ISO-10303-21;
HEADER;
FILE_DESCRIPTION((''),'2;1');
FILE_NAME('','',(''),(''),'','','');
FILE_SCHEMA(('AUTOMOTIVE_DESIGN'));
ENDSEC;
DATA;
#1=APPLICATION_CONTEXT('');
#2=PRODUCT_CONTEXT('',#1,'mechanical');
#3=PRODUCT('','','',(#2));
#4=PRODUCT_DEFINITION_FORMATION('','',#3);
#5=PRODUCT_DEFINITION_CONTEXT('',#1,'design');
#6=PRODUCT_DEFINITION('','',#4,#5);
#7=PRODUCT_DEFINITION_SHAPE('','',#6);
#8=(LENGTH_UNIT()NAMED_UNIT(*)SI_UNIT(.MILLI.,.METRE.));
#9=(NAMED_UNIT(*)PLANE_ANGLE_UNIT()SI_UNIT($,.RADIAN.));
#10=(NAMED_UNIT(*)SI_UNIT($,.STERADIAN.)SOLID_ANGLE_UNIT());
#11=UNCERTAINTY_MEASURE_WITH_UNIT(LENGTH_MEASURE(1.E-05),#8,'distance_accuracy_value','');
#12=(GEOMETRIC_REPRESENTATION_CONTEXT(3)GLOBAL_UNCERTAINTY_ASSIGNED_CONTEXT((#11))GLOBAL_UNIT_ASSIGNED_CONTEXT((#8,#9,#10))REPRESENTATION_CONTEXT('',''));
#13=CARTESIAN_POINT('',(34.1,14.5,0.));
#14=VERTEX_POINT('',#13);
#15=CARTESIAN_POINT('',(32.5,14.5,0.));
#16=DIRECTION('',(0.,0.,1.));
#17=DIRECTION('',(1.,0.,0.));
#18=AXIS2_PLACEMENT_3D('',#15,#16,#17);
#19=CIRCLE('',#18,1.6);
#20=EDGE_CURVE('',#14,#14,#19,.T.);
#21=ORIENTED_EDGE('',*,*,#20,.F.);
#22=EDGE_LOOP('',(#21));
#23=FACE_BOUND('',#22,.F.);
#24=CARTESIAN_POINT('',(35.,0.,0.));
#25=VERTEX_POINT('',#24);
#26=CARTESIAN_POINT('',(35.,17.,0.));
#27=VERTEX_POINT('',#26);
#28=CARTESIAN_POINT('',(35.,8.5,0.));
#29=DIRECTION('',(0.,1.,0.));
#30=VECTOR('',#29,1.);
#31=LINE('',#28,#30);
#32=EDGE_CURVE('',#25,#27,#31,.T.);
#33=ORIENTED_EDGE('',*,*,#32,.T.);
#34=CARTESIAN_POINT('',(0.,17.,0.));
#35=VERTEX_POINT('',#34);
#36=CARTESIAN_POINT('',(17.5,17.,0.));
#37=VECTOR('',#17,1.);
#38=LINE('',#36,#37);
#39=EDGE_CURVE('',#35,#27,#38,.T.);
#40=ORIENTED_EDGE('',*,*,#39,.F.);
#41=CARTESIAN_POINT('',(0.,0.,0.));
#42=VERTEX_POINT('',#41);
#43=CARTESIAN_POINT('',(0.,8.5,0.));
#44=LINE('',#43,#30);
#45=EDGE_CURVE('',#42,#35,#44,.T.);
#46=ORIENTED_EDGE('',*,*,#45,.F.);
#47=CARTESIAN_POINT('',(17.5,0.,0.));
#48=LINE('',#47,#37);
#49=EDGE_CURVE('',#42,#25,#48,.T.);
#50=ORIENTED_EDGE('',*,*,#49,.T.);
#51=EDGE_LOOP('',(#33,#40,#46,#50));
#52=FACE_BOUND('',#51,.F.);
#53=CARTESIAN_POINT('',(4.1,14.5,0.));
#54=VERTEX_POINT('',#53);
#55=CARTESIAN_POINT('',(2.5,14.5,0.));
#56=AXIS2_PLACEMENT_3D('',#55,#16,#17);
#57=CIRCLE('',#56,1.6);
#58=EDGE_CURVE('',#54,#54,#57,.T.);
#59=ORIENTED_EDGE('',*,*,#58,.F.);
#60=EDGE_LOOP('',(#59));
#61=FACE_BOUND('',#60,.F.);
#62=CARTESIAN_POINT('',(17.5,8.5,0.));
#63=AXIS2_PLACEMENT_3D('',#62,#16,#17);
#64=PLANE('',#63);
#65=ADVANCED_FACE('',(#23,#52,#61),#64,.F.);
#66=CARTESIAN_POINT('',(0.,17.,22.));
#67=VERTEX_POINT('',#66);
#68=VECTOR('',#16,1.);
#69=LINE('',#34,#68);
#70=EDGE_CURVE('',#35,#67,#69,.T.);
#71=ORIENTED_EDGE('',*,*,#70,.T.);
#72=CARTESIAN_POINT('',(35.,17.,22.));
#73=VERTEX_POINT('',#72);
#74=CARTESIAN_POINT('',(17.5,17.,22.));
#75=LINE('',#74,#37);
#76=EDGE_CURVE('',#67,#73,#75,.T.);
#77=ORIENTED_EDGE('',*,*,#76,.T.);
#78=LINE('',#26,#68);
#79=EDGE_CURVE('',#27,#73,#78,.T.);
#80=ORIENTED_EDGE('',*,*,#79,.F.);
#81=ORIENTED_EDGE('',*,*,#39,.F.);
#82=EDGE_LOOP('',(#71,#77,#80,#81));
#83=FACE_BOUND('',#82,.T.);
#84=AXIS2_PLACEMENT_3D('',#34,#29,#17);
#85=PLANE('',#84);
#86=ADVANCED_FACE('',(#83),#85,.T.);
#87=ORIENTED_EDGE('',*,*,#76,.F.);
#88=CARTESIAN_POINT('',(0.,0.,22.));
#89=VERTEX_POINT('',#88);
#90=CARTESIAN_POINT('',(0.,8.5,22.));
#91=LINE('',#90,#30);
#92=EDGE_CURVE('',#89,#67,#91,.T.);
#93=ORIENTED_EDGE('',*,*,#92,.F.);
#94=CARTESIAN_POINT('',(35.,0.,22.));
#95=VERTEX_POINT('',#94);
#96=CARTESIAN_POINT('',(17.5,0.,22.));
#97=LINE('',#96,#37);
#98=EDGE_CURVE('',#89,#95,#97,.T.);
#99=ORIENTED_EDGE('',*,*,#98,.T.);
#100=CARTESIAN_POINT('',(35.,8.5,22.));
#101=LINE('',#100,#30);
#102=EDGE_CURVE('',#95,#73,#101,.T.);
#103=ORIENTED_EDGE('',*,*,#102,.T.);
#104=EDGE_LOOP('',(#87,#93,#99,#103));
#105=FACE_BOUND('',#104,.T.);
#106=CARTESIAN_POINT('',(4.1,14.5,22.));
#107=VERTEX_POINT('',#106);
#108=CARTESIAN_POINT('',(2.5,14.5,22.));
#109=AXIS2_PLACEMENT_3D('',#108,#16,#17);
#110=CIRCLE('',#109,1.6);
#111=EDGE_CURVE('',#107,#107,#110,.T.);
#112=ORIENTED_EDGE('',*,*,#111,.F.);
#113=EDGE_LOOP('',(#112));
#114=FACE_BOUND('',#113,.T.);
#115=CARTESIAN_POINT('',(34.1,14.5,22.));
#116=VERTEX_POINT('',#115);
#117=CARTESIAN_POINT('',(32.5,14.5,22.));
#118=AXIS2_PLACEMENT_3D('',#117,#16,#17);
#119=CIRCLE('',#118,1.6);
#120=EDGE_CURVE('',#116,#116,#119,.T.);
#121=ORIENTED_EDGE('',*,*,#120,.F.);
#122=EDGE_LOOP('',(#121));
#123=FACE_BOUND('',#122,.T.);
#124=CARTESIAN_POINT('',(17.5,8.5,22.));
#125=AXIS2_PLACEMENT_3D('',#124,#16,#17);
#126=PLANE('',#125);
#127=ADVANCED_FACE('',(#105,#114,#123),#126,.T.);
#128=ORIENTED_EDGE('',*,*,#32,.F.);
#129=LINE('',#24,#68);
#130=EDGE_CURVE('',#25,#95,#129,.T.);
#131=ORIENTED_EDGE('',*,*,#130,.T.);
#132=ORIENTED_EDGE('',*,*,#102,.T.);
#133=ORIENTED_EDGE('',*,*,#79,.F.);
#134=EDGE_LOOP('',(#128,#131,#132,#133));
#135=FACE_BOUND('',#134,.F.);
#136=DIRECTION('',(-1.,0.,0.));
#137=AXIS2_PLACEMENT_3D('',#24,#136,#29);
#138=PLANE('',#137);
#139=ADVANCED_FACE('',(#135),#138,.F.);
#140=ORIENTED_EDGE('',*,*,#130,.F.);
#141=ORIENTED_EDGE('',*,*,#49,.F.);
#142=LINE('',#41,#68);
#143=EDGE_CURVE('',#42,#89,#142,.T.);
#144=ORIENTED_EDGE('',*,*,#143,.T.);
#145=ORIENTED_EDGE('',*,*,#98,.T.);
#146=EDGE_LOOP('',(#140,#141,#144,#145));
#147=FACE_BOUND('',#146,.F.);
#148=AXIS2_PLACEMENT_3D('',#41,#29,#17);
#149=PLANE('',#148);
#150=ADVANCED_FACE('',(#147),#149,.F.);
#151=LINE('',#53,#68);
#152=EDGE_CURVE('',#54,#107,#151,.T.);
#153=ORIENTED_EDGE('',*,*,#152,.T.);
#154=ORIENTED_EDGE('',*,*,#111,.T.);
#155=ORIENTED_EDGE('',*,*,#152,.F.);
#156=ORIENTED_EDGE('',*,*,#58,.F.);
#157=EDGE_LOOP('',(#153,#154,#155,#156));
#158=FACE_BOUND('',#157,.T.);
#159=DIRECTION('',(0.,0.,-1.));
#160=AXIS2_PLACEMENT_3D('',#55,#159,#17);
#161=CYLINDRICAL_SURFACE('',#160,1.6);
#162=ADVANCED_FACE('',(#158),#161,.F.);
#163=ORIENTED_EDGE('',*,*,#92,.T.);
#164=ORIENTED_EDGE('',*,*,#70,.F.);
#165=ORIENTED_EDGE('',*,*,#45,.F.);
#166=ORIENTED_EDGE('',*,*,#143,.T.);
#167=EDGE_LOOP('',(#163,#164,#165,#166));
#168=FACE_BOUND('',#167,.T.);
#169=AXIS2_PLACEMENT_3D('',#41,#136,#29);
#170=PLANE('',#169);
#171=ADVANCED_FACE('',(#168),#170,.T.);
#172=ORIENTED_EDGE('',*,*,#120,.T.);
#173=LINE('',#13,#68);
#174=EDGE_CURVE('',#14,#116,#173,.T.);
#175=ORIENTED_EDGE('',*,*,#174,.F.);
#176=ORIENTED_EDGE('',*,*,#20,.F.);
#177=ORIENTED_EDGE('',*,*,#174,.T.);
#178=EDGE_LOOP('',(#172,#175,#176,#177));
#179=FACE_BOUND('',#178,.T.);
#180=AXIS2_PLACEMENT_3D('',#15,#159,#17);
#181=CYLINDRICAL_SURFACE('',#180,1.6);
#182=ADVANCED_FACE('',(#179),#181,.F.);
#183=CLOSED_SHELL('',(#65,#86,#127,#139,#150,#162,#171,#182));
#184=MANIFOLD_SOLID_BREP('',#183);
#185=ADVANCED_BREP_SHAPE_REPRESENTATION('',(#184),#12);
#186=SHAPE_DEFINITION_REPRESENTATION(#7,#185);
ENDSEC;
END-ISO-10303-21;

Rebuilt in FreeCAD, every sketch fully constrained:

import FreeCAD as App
import Part
import Sketcher
from FreeCAD import Vector
Q = App.Units.Quantity

doc = App.newDocument("Part")
body = doc.addObject("PartDesign::Body", "Body")

# Sketch on XY plane
sketch1 = doc.addObject("Sketcher::SketchObject", "Sketch")
body.addObject(sketch1)
sketch1.AttachmentSupport = (doc.XY_Plane, [""])
sketch1.MapMode = "FlatFace"
sketch1.addGeometry(Part.LineSegment(Vector(0, 17, 0), Vector(0, 0, 0)), False)
sketch1.addGeometry(Part.LineSegment(Vector(0, 0, 0), Vector(35, 0, 0)), False)
sketch1.addGeometry(Part.LineSegment(Vector(35, 0, 0), Vector(35, 17, 0)), False)
sketch1.addGeometry(Part.LineSegment(Vector(35, 17, 0), Vector(0, 17, 0)), False)
sketch1.addGeometry(Part.Circle(Vector(2.5, 14.5, 0), Vector(0, 0, 1), 1.6), False)
sketch1.addGeometry(Part.Circle(Vector(32.5, 14.5, 0), Vector(0, 0, 1), 1.6), False)
sketch1.addConstraint(Sketcher.Constraint("Coincident", 0, 2, 1, 1))
sketch1.addConstraint(Sketcher.Constraint("Coincident", 1, 2, 2, 1))
sketch1.addConstraint(Sketcher.Constraint("Coincident", 2, 2, 3, 1))
sketch1.addConstraint(Sketcher.Constraint("Coincident", 3, 2, 0, 1))
sketch1.addConstraint(Sketcher.Constraint("Vertical", 0))
sketch1.addConstraint(Sketcher.Constraint("Horizontal", 1))
sketch1.addConstraint(Sketcher.Constraint("Vertical", 2))
sketch1.addConstraint(Sketcher.Constraint("Horizontal", 3))
sketch1.addConstraint(Sketcher.Constraint("Coincident", 0, 2, -1, 1))
sketch1.addConstraint(Sketcher.Constraint("Equal", 4, 5))
sketch1.addConstraint(Sketcher.Constraint("Horizontal", 4, 3, 5, 3))
sketch1.addConstraint(Sketcher.Constraint("Diameter", 4, Q("3.2 mm")))
sketch1.addConstraint(Sketcher.Constraint("DistanceX", 1, 1, 1, 2, Q("35 mm")))
sketch1.addConstraint(Sketcher.Constraint("DistanceY", 0, 2, 0, 1, Q("17 mm")))
sketch1.addConstraint(Sketcher.Constraint("DistanceX", 4, 3, 5, 3, Q("30 mm")))
sketch1.addConstraint(Sketcher.Constraint("DistanceX", -1, 1, 4, 3, Q("2.5 mm")))
sketch1.addConstraint(Sketcher.Constraint("DistanceY", -1, 1, 4, 3, Q("14.5 mm")))
pad1 = doc.addObject("PartDesign::Pad", "Pad")
body.addObject(pad1)
pad1.Profile = sketch1
pad1.Length = 22

doc.recompute()
